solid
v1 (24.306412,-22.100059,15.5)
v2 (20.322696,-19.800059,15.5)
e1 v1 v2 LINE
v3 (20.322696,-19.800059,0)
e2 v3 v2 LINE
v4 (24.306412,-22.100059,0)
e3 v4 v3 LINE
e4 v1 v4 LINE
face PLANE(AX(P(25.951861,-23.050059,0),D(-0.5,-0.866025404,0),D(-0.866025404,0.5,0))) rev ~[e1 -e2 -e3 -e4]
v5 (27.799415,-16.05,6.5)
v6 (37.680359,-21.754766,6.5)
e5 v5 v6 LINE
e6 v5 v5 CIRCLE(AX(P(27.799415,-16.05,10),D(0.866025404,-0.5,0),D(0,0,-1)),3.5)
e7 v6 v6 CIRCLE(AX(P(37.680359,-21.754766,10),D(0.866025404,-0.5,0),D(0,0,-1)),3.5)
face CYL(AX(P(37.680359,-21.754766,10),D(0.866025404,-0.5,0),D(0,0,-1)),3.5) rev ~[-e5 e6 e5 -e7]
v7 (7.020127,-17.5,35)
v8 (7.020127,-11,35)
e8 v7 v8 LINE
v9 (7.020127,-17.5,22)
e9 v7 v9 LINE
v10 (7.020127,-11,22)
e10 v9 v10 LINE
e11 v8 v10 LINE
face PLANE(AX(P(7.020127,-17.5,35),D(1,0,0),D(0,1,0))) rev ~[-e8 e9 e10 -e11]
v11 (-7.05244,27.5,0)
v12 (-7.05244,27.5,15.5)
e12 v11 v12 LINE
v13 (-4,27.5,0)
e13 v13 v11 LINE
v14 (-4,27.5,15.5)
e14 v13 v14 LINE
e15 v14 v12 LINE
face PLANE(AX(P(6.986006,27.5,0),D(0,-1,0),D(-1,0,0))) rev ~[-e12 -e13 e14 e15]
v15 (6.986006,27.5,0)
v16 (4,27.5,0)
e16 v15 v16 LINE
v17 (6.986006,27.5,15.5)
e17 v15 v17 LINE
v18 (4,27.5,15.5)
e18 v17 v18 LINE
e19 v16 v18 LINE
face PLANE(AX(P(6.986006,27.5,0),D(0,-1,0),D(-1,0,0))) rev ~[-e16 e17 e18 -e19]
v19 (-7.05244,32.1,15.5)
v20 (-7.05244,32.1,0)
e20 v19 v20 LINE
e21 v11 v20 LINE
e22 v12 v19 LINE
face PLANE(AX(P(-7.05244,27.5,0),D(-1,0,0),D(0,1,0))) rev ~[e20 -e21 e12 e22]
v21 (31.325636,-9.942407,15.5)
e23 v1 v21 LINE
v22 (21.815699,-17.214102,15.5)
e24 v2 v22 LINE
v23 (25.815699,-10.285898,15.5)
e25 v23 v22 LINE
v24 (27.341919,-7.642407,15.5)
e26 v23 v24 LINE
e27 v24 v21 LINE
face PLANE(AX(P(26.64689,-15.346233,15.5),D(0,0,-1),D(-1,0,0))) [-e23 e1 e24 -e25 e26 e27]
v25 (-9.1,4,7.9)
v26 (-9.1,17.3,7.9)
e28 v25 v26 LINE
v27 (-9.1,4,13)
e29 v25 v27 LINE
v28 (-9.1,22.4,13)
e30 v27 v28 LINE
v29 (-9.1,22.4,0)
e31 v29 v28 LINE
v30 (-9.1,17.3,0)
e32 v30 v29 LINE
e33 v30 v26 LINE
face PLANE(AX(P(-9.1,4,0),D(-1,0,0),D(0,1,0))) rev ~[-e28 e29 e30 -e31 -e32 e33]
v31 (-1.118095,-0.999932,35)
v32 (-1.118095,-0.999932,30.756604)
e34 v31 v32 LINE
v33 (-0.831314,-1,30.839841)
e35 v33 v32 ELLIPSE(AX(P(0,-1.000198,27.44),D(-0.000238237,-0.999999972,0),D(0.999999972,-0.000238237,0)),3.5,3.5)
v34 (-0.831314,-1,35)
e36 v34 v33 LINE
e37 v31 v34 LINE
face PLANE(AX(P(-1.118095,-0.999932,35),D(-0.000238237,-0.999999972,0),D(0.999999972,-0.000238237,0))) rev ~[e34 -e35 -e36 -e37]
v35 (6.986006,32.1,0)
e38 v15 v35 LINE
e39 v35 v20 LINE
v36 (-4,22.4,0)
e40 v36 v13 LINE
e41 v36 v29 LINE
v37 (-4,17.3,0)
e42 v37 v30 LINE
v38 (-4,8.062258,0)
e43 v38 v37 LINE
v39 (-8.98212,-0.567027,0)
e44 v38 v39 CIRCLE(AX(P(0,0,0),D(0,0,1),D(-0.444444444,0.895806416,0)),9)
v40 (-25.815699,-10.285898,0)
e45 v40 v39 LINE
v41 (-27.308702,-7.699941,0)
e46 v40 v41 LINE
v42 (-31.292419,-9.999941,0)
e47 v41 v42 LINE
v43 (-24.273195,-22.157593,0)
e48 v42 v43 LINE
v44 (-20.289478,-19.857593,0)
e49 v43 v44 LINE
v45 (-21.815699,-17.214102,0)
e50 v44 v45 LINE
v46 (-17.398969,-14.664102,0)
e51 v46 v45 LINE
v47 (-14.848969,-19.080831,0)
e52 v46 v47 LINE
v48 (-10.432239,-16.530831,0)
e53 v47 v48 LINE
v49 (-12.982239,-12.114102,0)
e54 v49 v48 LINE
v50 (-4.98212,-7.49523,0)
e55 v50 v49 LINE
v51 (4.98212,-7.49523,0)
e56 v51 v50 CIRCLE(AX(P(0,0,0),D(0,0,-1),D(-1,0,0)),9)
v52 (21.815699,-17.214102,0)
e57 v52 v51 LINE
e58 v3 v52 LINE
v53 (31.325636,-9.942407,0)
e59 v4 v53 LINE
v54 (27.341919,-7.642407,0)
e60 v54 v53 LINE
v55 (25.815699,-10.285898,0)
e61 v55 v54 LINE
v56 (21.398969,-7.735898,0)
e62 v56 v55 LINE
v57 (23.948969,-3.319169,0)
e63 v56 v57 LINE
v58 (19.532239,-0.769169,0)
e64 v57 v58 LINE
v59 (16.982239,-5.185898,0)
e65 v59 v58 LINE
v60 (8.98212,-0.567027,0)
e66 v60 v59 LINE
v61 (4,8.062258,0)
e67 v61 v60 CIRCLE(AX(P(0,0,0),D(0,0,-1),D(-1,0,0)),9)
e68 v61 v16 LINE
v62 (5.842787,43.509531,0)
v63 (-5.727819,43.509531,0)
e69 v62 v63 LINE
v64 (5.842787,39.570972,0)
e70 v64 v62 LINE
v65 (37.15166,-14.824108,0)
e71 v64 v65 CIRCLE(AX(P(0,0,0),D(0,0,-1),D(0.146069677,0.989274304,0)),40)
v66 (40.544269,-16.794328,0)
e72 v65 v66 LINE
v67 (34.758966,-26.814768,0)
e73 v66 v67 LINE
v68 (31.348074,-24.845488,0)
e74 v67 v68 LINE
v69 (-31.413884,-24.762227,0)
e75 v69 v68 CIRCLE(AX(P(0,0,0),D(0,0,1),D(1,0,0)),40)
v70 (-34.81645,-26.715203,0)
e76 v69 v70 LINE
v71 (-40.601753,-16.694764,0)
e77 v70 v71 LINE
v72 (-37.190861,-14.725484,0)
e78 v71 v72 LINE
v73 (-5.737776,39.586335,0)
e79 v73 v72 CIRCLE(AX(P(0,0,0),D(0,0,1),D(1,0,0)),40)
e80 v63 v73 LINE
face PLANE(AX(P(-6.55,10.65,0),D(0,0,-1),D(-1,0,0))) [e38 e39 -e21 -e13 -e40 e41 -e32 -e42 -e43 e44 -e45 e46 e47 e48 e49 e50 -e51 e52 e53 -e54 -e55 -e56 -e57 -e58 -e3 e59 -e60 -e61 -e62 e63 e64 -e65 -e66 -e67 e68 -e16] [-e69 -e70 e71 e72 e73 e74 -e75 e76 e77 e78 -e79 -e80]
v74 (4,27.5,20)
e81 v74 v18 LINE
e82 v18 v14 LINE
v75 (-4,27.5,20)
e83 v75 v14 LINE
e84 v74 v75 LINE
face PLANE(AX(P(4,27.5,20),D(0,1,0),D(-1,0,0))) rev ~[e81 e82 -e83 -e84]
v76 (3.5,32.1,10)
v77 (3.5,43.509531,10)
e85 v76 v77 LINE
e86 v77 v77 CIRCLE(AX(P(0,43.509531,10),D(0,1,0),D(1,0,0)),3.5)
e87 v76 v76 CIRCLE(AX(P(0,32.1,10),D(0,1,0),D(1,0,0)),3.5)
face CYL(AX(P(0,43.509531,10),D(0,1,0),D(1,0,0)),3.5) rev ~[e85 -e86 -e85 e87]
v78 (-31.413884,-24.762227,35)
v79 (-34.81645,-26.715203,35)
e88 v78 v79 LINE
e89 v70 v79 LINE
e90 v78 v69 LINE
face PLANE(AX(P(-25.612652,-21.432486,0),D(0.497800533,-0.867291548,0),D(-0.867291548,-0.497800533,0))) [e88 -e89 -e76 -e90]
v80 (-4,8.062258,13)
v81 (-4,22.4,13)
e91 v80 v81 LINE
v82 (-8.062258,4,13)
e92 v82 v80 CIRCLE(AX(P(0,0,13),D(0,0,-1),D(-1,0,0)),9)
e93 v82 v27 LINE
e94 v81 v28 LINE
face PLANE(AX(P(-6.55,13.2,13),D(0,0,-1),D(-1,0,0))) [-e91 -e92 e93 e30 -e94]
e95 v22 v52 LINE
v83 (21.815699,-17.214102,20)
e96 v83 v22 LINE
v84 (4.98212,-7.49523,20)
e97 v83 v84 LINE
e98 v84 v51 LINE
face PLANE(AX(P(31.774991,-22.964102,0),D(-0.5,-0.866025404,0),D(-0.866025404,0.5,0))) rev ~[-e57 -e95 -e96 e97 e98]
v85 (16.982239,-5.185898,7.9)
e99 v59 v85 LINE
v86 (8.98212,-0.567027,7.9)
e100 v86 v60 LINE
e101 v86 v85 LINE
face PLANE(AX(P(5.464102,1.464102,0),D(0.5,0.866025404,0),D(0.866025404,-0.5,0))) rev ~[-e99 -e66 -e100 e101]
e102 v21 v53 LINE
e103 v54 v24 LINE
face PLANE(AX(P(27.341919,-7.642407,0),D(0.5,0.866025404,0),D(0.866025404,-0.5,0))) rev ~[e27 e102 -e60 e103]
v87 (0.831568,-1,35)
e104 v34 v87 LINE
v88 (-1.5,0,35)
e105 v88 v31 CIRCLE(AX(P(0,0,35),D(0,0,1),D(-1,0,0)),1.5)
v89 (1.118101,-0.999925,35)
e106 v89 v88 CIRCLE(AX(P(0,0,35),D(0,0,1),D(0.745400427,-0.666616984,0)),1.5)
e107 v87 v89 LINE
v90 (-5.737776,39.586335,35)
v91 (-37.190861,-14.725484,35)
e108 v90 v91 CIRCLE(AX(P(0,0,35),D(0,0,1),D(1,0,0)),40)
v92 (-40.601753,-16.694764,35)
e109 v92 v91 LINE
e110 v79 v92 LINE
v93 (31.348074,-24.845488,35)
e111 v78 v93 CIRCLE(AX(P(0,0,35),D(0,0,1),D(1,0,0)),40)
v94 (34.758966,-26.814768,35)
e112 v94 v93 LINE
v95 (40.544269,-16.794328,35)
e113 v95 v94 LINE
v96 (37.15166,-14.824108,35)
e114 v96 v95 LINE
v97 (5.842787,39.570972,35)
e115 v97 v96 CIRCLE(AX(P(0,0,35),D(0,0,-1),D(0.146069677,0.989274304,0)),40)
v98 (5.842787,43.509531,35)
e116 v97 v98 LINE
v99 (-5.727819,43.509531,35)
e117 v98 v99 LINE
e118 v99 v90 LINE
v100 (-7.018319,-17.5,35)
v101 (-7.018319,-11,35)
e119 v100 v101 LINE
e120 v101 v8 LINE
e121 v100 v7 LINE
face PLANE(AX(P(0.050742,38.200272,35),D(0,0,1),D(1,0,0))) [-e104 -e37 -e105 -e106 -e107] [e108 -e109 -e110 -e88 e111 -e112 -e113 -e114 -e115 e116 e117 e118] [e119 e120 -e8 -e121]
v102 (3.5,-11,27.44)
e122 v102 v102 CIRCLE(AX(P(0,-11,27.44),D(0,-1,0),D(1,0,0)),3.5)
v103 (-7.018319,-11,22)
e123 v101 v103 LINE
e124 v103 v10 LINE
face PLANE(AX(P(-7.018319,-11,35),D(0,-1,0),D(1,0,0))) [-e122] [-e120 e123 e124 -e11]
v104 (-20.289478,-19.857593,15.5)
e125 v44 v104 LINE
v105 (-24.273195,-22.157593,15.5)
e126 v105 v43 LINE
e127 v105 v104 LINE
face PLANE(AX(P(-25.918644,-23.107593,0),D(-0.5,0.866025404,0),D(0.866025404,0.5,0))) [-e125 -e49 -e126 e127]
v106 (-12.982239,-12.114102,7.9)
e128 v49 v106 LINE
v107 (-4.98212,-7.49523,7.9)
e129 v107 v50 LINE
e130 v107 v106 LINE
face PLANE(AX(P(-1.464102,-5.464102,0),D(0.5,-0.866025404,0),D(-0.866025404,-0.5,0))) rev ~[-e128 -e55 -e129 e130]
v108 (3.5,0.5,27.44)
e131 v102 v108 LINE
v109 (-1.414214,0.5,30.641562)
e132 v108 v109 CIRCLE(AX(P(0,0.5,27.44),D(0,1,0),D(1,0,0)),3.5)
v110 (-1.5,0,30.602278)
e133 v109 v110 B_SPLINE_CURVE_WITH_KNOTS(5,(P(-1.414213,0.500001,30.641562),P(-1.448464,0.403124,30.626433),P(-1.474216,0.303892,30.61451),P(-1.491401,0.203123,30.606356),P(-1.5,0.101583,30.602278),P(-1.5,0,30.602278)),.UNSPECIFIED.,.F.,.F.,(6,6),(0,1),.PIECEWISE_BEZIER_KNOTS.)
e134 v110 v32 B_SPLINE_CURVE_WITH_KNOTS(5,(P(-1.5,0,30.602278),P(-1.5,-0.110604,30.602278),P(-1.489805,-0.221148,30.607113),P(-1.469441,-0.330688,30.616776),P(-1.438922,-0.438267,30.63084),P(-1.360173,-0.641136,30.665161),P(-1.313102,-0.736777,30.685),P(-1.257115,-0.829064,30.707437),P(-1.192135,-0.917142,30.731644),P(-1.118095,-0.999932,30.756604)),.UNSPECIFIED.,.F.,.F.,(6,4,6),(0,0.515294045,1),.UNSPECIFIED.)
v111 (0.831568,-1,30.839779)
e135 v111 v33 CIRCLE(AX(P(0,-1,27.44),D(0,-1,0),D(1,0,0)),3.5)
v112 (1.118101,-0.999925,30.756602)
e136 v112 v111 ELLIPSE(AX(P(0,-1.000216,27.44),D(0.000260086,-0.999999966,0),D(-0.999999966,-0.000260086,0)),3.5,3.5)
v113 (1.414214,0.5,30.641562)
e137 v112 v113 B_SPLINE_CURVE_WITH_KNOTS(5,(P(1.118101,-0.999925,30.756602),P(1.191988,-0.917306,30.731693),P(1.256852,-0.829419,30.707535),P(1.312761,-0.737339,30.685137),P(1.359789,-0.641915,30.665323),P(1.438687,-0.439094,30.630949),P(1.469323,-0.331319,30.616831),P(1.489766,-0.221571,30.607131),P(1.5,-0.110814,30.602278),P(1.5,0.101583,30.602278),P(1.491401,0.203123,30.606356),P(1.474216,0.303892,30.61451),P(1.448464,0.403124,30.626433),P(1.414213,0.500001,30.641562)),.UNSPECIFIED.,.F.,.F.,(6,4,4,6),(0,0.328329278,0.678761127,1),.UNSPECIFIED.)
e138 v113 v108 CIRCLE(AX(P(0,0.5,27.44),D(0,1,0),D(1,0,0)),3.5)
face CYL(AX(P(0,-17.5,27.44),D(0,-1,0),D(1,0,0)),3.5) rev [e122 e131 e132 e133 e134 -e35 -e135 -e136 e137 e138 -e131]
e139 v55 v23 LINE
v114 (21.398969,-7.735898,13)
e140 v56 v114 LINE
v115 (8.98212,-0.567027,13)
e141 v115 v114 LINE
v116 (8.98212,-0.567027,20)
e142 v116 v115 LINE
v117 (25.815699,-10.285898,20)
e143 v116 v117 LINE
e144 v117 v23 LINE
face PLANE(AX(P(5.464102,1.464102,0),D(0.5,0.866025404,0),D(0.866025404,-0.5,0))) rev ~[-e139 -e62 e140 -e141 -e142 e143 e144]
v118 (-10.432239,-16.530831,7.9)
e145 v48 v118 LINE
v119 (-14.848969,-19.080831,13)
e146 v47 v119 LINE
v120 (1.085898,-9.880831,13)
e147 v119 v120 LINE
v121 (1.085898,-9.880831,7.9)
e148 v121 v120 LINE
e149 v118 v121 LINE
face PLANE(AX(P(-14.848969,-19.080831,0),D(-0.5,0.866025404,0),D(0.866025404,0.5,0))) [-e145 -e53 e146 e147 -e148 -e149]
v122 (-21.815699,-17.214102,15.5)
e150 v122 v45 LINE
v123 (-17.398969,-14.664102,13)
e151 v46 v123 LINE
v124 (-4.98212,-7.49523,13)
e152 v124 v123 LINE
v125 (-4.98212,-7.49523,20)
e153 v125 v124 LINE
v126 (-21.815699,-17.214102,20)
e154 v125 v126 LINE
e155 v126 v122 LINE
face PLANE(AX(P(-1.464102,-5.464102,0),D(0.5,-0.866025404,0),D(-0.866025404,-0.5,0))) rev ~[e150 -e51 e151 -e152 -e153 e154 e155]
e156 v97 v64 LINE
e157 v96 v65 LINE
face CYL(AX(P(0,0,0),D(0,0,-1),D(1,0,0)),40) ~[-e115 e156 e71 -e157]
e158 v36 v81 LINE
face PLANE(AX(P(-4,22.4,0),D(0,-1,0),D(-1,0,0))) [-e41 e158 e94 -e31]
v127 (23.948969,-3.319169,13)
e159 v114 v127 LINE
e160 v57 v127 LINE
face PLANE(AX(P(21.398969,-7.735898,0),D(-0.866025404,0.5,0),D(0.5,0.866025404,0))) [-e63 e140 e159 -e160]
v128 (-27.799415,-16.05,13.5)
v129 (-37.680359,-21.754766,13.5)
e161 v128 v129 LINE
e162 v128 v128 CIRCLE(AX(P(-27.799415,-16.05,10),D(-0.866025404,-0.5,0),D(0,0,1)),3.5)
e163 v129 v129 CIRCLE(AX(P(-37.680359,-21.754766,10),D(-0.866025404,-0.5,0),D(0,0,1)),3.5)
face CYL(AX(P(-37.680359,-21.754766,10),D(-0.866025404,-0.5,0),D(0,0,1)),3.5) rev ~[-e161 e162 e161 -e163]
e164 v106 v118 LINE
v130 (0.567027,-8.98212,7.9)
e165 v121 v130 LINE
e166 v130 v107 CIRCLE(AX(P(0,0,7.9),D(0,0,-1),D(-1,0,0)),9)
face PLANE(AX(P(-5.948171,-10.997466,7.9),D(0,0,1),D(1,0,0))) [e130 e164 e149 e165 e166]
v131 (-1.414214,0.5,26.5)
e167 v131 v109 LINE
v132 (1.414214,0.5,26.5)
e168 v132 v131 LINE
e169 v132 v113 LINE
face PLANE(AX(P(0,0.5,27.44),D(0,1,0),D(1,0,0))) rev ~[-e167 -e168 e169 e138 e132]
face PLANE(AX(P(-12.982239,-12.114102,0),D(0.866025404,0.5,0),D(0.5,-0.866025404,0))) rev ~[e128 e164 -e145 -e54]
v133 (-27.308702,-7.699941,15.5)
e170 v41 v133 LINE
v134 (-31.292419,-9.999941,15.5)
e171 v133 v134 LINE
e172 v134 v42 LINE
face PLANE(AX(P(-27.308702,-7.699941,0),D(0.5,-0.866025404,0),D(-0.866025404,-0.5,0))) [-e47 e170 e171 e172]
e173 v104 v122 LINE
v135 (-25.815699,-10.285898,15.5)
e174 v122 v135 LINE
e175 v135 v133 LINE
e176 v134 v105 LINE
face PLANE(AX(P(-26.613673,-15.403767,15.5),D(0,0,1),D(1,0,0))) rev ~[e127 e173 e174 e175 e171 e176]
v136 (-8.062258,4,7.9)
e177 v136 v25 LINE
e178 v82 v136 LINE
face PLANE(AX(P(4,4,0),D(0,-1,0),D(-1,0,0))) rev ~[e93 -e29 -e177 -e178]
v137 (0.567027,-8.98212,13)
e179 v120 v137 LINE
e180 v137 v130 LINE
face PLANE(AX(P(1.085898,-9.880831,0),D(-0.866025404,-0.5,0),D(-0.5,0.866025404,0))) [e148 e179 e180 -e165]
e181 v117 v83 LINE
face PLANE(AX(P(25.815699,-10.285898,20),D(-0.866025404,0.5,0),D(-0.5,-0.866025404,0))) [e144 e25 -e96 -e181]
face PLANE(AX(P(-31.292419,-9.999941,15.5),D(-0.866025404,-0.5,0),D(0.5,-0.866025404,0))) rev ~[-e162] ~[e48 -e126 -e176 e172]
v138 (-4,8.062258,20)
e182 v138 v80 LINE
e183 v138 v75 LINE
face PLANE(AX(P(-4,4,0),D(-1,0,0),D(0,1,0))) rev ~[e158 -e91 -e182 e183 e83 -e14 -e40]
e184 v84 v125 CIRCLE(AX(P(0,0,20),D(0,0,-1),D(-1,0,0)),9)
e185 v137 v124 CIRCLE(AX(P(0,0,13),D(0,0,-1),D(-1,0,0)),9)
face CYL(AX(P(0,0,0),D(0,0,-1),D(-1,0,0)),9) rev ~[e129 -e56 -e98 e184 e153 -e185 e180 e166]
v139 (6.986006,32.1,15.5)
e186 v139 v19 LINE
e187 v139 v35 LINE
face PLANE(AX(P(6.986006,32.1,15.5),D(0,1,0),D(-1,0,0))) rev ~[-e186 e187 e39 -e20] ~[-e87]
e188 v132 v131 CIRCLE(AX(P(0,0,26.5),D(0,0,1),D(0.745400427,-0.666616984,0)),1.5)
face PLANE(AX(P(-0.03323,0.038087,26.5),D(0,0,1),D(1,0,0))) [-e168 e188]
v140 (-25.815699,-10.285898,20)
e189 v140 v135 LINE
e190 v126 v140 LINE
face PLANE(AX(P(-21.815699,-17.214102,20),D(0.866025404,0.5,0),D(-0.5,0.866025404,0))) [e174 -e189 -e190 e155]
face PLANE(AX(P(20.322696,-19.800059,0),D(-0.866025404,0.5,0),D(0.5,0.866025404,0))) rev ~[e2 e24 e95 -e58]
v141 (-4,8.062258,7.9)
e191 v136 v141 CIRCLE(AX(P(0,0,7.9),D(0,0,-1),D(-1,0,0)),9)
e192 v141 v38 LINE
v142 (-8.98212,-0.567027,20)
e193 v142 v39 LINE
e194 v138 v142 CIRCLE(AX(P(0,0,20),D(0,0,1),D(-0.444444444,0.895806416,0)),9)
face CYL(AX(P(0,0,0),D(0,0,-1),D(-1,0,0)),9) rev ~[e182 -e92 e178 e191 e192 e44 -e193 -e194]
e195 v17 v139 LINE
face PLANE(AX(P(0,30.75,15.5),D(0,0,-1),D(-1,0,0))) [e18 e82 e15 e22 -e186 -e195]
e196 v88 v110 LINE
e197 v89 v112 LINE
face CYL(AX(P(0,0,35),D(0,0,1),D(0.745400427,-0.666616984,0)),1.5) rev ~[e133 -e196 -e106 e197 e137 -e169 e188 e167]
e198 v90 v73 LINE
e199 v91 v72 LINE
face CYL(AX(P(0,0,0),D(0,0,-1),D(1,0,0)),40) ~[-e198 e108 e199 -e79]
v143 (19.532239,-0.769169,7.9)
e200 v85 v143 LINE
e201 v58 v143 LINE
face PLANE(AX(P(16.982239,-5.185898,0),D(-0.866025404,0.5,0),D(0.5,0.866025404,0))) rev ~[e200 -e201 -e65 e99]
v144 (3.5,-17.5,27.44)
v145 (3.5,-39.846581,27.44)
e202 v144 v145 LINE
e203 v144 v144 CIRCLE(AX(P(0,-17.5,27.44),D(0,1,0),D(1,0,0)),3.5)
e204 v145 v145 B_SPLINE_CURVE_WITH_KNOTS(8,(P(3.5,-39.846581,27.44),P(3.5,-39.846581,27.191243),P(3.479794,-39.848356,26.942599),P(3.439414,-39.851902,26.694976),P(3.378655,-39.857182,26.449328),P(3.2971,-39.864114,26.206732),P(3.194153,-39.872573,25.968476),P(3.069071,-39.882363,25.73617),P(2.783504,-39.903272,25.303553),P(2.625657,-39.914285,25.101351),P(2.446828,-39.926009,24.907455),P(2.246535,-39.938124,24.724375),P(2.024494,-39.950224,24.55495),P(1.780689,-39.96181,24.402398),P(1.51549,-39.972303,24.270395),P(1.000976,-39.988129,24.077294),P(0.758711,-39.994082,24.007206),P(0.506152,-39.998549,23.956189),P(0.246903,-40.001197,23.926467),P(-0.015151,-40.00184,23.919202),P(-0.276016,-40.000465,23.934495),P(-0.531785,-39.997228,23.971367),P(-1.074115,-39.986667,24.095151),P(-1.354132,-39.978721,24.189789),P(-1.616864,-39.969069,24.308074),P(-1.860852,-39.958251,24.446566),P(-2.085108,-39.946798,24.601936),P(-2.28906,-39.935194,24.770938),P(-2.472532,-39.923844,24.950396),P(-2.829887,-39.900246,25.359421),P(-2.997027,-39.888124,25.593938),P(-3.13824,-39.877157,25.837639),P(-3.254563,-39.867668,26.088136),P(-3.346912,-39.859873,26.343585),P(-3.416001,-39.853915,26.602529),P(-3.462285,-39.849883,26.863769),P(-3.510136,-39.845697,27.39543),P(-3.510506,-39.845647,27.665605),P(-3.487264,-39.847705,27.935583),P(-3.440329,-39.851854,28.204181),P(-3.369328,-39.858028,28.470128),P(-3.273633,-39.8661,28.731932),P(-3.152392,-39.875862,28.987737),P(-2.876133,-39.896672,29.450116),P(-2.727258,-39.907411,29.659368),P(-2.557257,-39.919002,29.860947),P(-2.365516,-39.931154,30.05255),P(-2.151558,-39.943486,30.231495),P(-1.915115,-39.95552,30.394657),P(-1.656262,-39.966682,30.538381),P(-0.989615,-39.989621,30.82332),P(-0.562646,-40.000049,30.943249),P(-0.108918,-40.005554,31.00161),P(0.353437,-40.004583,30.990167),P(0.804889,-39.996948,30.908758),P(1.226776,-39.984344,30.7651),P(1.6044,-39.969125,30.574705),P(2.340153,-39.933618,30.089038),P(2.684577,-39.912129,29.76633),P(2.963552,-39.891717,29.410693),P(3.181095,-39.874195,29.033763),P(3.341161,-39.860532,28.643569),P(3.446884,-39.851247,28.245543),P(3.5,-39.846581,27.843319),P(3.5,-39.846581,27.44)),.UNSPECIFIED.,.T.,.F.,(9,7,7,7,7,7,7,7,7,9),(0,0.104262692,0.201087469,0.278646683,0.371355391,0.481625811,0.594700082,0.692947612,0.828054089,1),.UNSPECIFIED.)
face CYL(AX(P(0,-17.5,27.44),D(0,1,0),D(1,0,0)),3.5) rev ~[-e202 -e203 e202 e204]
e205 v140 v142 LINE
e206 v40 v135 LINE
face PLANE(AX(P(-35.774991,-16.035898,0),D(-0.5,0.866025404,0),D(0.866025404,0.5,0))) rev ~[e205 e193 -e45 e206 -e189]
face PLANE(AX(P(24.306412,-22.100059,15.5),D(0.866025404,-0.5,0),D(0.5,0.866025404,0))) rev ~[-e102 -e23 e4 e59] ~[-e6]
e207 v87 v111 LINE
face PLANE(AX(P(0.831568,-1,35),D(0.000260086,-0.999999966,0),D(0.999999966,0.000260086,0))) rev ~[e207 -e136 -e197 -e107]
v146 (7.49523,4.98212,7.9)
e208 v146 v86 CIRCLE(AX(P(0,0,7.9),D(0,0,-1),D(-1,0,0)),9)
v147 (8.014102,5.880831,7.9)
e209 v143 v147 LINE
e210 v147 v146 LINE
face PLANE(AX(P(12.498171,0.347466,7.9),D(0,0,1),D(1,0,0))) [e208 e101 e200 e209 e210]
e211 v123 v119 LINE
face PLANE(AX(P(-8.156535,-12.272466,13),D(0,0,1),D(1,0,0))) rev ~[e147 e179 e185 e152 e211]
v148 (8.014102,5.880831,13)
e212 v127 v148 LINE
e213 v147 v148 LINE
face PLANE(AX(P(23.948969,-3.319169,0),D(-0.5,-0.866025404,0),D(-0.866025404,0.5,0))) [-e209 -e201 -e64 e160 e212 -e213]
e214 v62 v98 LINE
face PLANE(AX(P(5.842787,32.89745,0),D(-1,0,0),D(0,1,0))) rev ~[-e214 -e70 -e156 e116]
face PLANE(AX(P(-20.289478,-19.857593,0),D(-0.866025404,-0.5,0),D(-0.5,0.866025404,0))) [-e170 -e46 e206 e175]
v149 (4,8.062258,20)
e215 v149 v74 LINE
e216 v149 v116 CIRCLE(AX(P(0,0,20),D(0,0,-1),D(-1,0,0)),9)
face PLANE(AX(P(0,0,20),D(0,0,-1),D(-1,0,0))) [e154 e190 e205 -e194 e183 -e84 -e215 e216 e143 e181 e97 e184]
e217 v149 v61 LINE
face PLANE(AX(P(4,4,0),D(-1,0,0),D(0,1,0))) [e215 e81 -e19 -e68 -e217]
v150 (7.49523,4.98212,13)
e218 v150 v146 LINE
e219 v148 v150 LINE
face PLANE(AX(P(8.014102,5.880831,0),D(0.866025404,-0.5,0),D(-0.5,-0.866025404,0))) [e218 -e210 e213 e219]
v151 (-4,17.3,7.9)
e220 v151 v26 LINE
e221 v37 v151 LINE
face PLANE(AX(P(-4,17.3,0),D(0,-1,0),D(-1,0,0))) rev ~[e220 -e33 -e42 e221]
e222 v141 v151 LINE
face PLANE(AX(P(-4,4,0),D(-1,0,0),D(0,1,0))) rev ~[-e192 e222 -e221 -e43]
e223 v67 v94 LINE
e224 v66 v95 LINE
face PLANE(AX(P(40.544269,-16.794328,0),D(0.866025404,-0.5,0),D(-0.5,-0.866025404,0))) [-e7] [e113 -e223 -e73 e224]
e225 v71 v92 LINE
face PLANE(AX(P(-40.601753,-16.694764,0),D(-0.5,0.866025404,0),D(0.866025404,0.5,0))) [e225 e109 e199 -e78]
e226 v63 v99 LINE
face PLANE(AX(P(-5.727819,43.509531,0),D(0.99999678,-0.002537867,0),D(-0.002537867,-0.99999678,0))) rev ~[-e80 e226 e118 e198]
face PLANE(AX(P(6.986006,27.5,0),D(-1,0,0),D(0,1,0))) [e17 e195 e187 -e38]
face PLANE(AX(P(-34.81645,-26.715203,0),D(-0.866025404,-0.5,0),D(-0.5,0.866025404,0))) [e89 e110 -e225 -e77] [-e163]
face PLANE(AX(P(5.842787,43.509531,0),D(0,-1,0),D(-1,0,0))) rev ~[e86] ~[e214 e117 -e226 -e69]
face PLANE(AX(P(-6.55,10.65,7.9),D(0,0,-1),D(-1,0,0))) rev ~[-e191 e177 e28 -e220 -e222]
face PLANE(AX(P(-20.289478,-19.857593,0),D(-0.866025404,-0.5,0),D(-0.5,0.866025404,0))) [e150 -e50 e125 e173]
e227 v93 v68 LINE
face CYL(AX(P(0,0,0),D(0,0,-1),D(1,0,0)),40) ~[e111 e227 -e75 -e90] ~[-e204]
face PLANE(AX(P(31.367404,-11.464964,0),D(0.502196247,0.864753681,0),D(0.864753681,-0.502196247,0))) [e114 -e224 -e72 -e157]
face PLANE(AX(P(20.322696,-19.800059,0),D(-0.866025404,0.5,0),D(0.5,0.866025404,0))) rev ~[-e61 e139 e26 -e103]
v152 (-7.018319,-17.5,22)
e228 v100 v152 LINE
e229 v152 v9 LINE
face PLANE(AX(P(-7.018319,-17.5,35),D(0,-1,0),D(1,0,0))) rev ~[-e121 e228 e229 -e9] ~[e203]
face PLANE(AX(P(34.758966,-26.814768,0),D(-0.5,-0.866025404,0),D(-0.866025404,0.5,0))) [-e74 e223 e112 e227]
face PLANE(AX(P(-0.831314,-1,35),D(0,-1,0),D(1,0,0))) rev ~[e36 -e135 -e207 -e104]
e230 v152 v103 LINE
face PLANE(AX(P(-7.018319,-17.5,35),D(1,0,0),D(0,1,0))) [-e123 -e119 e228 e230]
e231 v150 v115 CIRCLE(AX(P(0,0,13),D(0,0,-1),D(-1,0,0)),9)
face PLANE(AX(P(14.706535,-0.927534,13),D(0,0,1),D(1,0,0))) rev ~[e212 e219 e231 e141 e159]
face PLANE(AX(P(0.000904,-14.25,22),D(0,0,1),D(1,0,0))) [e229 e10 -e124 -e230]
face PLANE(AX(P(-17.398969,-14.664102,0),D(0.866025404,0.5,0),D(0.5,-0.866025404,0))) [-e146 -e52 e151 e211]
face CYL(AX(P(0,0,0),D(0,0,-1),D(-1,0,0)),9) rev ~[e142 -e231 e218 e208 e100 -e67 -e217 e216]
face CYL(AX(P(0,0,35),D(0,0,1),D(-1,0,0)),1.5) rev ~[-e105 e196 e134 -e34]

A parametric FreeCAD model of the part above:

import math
import FreeCAD as App
import Part
import Sketcher
Q = App.Units.Quantity


def add_polygon(sketch, points):
    """Adds a closed chain of lines whose ends are joined by coincident constraints."""
    first, n = sketch.GeometryCount, len(points)
    for a, b in zip(points, points[1:] + points[:1]):
        sketch.addGeometry(Part.LineSegment(App.Vector(*a, 0), App.Vector(*b, 0)), False)
    for i in range(n):
        sketch.addConstraint(Sketcher.Constraint("Coincident", first + i, 2, first + (i + 1) % n, 1))

doc = App.newDocument("Part")
body = doc.addObject("PartDesign::Body", "Body")

# Sketch on XY plane
sketch1 = body.newObject("Sketcher::SketchObject", "Sketch")
sketch1.AttachmentSupport = (doc.getObject("XY_Plane"), [""])
sketch1.MapMode = "FlatFace"
sketch1.addGeometry(Part.Circle(App.Vector(0, 0, 0), App.Vector(0, 0, 1), 40), False)
sketch1.addConstraint([
    Sketcher.Constraint("Coincident", 0, 3, -1, 1),
    Sketcher.Constraint("Diameter", 0, 80.0),
])
pad1 = body.newObject("PartDesign::Pad", "Pad")
pad1.Profile = sketch1
pad1.Length = 35

# Sketch on XY plane
sketch2 = body.newObject("Sketcher::SketchObject", "Sketch001")
sketch2.AttachmentSupport = (doc.getObject("XY_Plane"), [""])
sketch2.MapMode = "FlatFace"
add_polygon(sketch2, [(4, 39), (4, 4), (-4, 4), (-4, 39)])  # lines 0-3
add_polygon(sketch2, [(-31.774991, -22.964102), (-35.774991, -16.035898), (-5.464102, 1.464102), (-1.464102, -5.464102)])  # lines 4-7
add_polygon(sketch2, [(35.774991, -16.035898), (31.774991, -22.964102), (1.464102, -5.464102), (5.464102, 1.464102)])  # lines 8-11
sketch2.addConstraint([
    Sketcher.Constraint("Vertical", 0),
    Sketcher.Constraint("Horizontal", 1),
    Sketcher.Constraint("Vertical", 2),
    Sketcher.Constraint("Horizontal", 3),
    Sketcher.Constraint("Symmetric", 7, 2, 8, 2, -2),
    Sketcher.Constraint("Symmetric", 6, 2, 9, 2, -2),
    Sketcher.Constraint("Symmetric", 5, 2, 10, 2, -2),
    Sketcher.Constraint("Symmetric", 4, 2, 11, 2, -2),
    Sketcher.Constraint("Perpendicular", 4, 5),
    Sketcher.Constraint("Perpendicular", 5, 6),
    Sketcher.Constraint("Perpendicular", 6, 7),
    Sketcher.Constraint("DistanceX", 1, 2, 1, 1, 8.0),
    Sketcher.Constraint("DistanceY", 0, 2, 0, 1, 35.0),
    Sketcher.Constraint("Angle", 4, Q("120 deg")),
    Sketcher.Constraint("Distance", 4, 8.0),
    Sketcher.Constraint("Distance", 5, 35.0),
    Sketcher.Constraint("DistanceX", -1, 1, 0, 2, 4.0),
    Sketcher.Constraint("DistanceY", -1, 1, 0, 2, 4.0),
    Sketcher.Constraint("DistanceY", 4, 2, -1, 1, 16.035898),
    Sketcher.Constraint("DistanceX", 5, 2, -1, 1, 5.464102),
])
pocket1 = body.newObject("PartDesign::Pocket", "Pocket")
pocket1.Profile = sketch2
pocket1.Length = 20
pocket1.Reversed = True

# Sketch on an angled plane
sketch3 = body.newObject("Sketcher::SketchObject", "Sketch002")
sketch3.Placement = App.Placement(App.Vector(-3.464102, -2, 0), App.Rotation(App.Vector(0, 0, 1), App.Vector(-0.5, 0.866025404, 0), App.Vector(-0.866025404, -0.5, 0), "ZXY"))
sketch3.addGeometry(Part.Circle(App.Vector(10, 0, 0), App.Vector(0, 0, 1), 3.5), False)
sketch3.addConstraint([
    Sketcher.Constraint("PointOnObject", 0, 3, -1),
    Sketcher.Constraint("Diameter", 0, 7.0),
    Sketcher.Constraint("DistanceX", -1, 1, 0, 3, 10.0),
])
pocket2 = body.newObject("PartDesign::Pocket", "Pocket001")
pocket2.Profile = sketch3
pocket2.Length = 80
pocket2.Reversed = True

# Sketch on XZ plane
sketch4 = body.newObject("Sketcher::SketchObject", "Sketch003")
sketch4.AttachmentSupport = (doc.getObject("XZ_Plane"), [""])
sketch4.MapMode = "FlatFace"
sketch4.AttachmentOffset = App.Placement(App.Vector(0, 0, -4), App.Rotation())
sketch4.addGeometry(Part.Circle(App.Vector(0, 10, 0), App.Vector(0, 0, 1), 3.5), False)
sketch4.addConstraint([
    Sketcher.Constraint("PointOnObject", 0, 3, -2),
    Sketcher.Constraint("Diameter", 0, 7.0),
    Sketcher.Constraint("DistanceY", -1, 1, 0, 3, 10.0),
])
pocket3 = body.newObject("PartDesign::Pocket", "Pocket002")
pocket3.Profile = sketch4
pocket3.Length = 50

# Sketch on an angled plane
sketch5 = body.newObject("Sketcher::SketchObject", "Sketch004")
sketch5.Placement = App.Placement(App.Vector(3.464102, -2, 0), App.Rotation(App.Vector(0, 0, -1), App.Vector(0.5, 0.866025404, 0), App.Vector(0.866025404, -0.5, 0), "ZXY"))
sketch5.addGeometry(Part.Circle(App.Vector(-10, 0, 0), App.Vector(0, 0, 1), 3.5), False)
sketch5.addConstraint([
    Sketcher.Constraint("PointOnObject", 0, 3, -1),
    Sketcher.Constraint("Diameter", 0, 7.0),
    Sketcher.Constraint("DistanceX", 0, 3, -1, 1, 10.0),
])
pocket4 = body.newObject("PartDesign::Pocket", "Pocket003")
pocket4.Profile = sketch5
pocket4.Length = 50
pocket4.Reversed = True

# Sketch on XY plane
sketch6 = body.newObject("Sketcher::SketchObject", "Sketch005")
sketch6.AttachmentSupport = (doc.getObject("XY_Plane"), [""])
sketch6.MapMode = "FlatFace"
add_polygon(sketch6, [(32.971084, -10.892407), (25.951861, -23.050059), (20.322696, -19.800059), (27.341919, -7.642407)])  # lines 0-3
add_polygon(sketch6, [(6.986006, 34), (6.986006, 27.5), (-7.05244, 27.5), (-7.05244, 34)])  # lines 4-7
add_polygon(sketch6, [(-32.937867, -10.949941), (-27.308702, -7.699941), (-20.289478, -19.857593), (-25.918644, -23.107593)])  # lines 8-11
sketch6.addConstraint([
    Sketcher.Constraint("Vertical", 4),
    Sketcher.Constraint("Horizontal", 5),
    Sketcher.Constraint("Vertical", 6),
    Sketcher.Constraint("Horizontal", 7),
    Sketcher.Constraint("Perpendicular", 0, 1),
    Sketcher.Constraint("Perpendicular", 1, 2),
    Sketcher.Constraint("Perpendicular", 2, 3),
    Sketcher.Constraint("Perpendicular", 8, 9),
    Sketcher.Constraint("Perpendicular", 9, 10),
    Sketcher.Constraint("Perpendicular", 10, 11),
    Sketcher.Constraint("Equal", 3, 8),
    Sketcher.Constraint("Equal", 2, 9),
    Sketcher.Constraint("Angle", 0, Q("-120 deg")),
    Sketcher.Constraint("Angle", 8, Q("30 deg")),
    Sketcher.Constraint("DistanceY", 4, 2, 4, 1, 6.5),
    Sketcher.Constraint("DistanceY", -1, 1, 6, 2, 34.0),
    Sketcher.Constraint("Distance", 1, 6.5),
    Sketcher.Constraint("DistanceX", 8, 2, -1, 1, 27.308702),
    Sketcher.Constraint("DistanceX", 5, 2, 0, 2, 33.004301),
    Sketcher.Constraint("DistanceX", 5, 2, 5, 1, 14.038447),
    Sketcher.Constraint("DistanceX", -1, 1, 0, 2, 25.951861),
    Sketcher.Constraint("DistanceY", 0, 2, -1, 1, 23.050059),
    Sketcher.Constraint("DistanceX", -1, 1, 2, 2, 27.341919),
    Sketcher.Constraint("DistanceY", 8, 2, -1, 1, 7.699941),
])
pocket5 = body.newObject("PartDesign::Pocket", "Pocket004")
pocket5.Profile = sketch6
pocket5.Length = 15.5
pocket5.Reversed = True

# Sketch on XY plane
sketch7 = body.newObject("Sketcher::SketchObject", "Sketch006")
sketch7.AttachmentSupport = (doc.getObject("XY_Plane"), [""])
sketch7.MapMode = "FlatFace"
sketch7.AttachmentOffset = App.Placement(App.Vector(0, 0, 20), App.Rotation())
add_polygon(sketch7, [(4, 34), (4, 27.5), (-4, 27.5), (-4, 34)])  # lines 0-3
add_polygon(sketch7, [(-31.444864, -13.535898), (-25.815699, -10.285898), (-21.815699, -17.214102), (-27.444864, -20.464102)])  # lines 4-7
add_polygon(sketch7, [(27.444864, -20.464102), (21.815699, -17.214102), (25.815699, -10.285898), (31.444864, -13.535898)])  # lines 8-11
sketch7.addConstraint([
    Sketcher.Constraint("Vertical", 0),
    Sketcher.Constraint("Horizontal", 1),
    Sketcher.Constraint("Vertical", 2),
    Sketcher.Constraint("Horizontal", 3),
    Sketcher.Constraint("Symmetric", 5, 2, 8, 2, -2),
    Sketcher.Constraint("Symmetric", 4, 2, 9, 2, -2),
    Sketcher.Constraint("Symmetric", 7, 2, 10, 2, -2),
    Sketcher.Constraint("Symmetric", 6, 2, 11, 2, -2),
    Sketcher.Constraint("Perpendicular", 4, 5),
    Sketcher.Constraint("Perpendicular", 5, 6),
    Sketcher.Constraint("Perpendicular", 6, 7),
    Sketcher.Constraint("DistanceX", 1, 2, 1, 1, 8.0),
    Sketcher.Constraint("Angle", 4, Q("30 deg")),
    Sketcher.Constraint("Distance", 5, 8.0),
    Sketcher.Constraint("DistanceY", 0, 2, 0, 1, 6.5),
    Sketcher.Constraint("DistanceX", -1, 1, 0, 2, 4.0),
    Sketcher.Constraint("DistanceY", -1, 1, 2, 2, 34.0),
    Sketcher.Constraint("Distance", 4, 6.5),
    Sketcher.Constraint("DistanceX", 4, 2, -1, 1, 25.815699),
    Sketcher.Constraint("DistanceY", 4, 2, -1, 1, 10.285898),
])
pad2 = body.newObject("PartDesign::Pad", "Pad001")
pad2.Profile = sketch7
pad2.Length = 4.5
pad2.Reversed = True

# Sketch on XY plane
sketch8 = body.newObject("Sketcher::SketchObject", "Sketch007")
sketch8.AttachmentSupport = (doc.getObject("XY_Plane"), [""])
sketch8.MapMode = "FlatFace"
sketch8.AttachmentOffset = App.Placement(App.Vector(0, 0, 15.5), App.Rotation())
add_polygon(sketch8, [(6.986006, 32.1), (-7.05244, 32.1), (-7.05244, 34), (-4, 34), (-4, 39), (4, 39), (4, 34), (6.986006, 34)])  # lines 0-7
add_polygon(sketch8, [(-25.918644, -23.107593), (-27.444864, -20.464102), (-31.774991, -22.964102), (-35.774991, -16.035898), (-31.444864, -13.535898), (-32.937867, -10.949941), (-31.292419, -9.999941), (-24.273195, -22.157593)])  # lines 8-15
add_polygon(sketch8, [(32.971084, -10.892407), (31.444864, -13.535898), (35.774991, -16.035898), (31.774991, -22.964102), (27.444864, -20.464102), (25.951861, -23.050059), (24.306412, -22.100059), (31.325636, -9.942407)])  # lines 16-23
sketch8.addConstraint([
    Sketcher.Constraint("Horizontal", 0),
    Sketcher.Constraint("Vertical", 1),
    Sketcher.Constraint("Horizontal", 2),
    Sketcher.Constraint("Vertical", 3),
    Sketcher.Constraint("Horizontal", 4),
    Sketcher.Constraint("Vertical", 5),
    Sketcher.Constraint("Horizontal", 6),
    Sketcher.Constraint("Vertical", 7),
    Sketcher.Constraint("Symmetric", 2, 2, 5, 2, -2),
    Sketcher.Constraint("Symmetric", 11, 2, 16, 2, -2),
    Sketcher.Constraint("Symmetric", 10, 2, 17, 2, -2),
    Sketcher.Constraint("Symmetric", 9, 2, 18, 2, -2),
    Sketcher.Constraint("Symmetric", 8, 2, 19, 2, -2),
    Sketcher.Constraint("Perpendicular", 8, 9),
    Sketcher.Constraint("Perpendicular", 9, 10),
    Sketcher.Constraint("Perpendicular", 10, 11),
    Sketcher.Constraint("Perpendicular", 11, 12),
    Sketcher.Constraint("Perpendicular", 12, 13),
    Sketcher.Constraint("Perpendicular", 13, 14),
    Sketcher.Constraint("Perpendicular", 14, 15),
    Sketcher.Constraint("Perpendicular", 16, 17),
    Sketcher.Constraint("Perpendicular", 19, 20),
    Sketcher.Constraint("Perpendicular", 20, 21),
    Sketcher.Constraint("Perpendicular", 21, 22),
    Sketcher.Constraint("Perpendicular", 22, 23),
    Sketcher.Constraint("Equal", 9, 11),
    Sketcher.Constraint("Equal", 8, 16),
    Sketcher.Constraint("Equal", 12, 20),
    Sketcher.Constraint("Equal", 15, 21),
    Sketcher.Constraint("DistanceX", 4, 1, 4, 2, 8.0),
    Sketcher.Constraint("DistanceY", 3, 1, 3, 2, 5.0),
    Sketcher.Constraint("Angle", 8, Q("120 deg")),
    Sketcher.Constraint("Distance", 9, 5.0),
    Sketcher.Constraint("Distance", 10, 8.0),
    Sketcher.Constraint("DistanceY", 1, 1, 1, 2, 1.9),
    Sketcher.Constraint("DistanceY", -1, 1, 1, 2, 34.0),
    Sketcher.Constraint("Distance", 13, 1.9),
    Sketcher.Constraint("DistanceX", 2, 1, 2, 2, 3.05244),
    Sketcher.Constraint("DistanceY", 8, 2, -1, 1, 20.464102),
    Sketcher.Constraint("Distance", 8, 3.05244),
    Sketcher.Constraint("DistanceX", 0, 2, 0, 1, 14.038447),
    Sketcher.Constraint("DistanceX", 9, 2, -1, 1, 31.774991),
    Sketcher.Constraint("DistanceY", 12, 2, -1, 1, 10.949941),
])
pad3 = body.newObject("PartDesign::Pad", "Pad002")
pad3.Profile = sketch8
pad3.Length = 15.5
pad3.Reversed = True

# Sketch on XY plane
sketch9 = body.newObject("Sketcher::SketchObject", "Sketch008")
sketch9.AttachmentSupport = (doc.getObject("XY_Plane"), [""])
sketch9.MapMode = "FlatFace"
add_polygon(sketch9, [(5.842787, 43.509531), (5.842787, 32.89745), (-5.754752, 32.89745), (-5.727819, 43.509531)])  # lines 0-3
add_polygon(sketch9, [(-31.411421, -11.388723), (-25.612652, -21.432486), (-34.81645, -26.715203), (-40.601753, -16.694764)])  # lines 4-7
add_polygon(sketch9, [(25.568634, -21.508727), (31.367404, -11.464964), (40.544269, -16.794328), (34.758966, -26.814768)])  # lines 8-11
sketch9.addConstraint([
    Sketcher.Constraint("Vertical", 0),
    Sketcher.Constraint("Horizontal", 1),
    Sketcher.Constraint("Horizontal", 3),
    Sketcher.Constraint("DistanceX", 6, 2, 1, 2, 34.847001),
    Sketcher.Constraint("DistanceX", 1, 2, 1, 1, 11.597539),
    Sketcher.Constraint("DistanceY", 0, 2, 0, 1, 10.612081),
    Sketcher.Constraint("DistanceX", 4, 2, 1, 2, 19.8579),
    Sketcher.Constraint("DistanceX", 5, 2, 1, 2, 29.061698),
    Sketcher.Constraint("DistanceY", 11, 2, 9, 2, 4.714399),
    Sketcher.Constraint("Distance", 4, 11.597539),
    Sketcher.Constraint("Distance", 7, 10.612081),
    Sketcher.Constraint("Distance", 8, 11.597539),
    Sketcher.Constraint("Distance", 11, 10.612081),
    Sketcher.Constraint("DistanceX", 3, 1, 3, 2, 11.570606),
    Sketcher.Constraint("DistanceY", -1, 1, 0, 2, 32.89745),
    Sketcher.Constraint("DistanceX", 1, 2, -1, 1, 5.754752),
    Sketcher.Constraint("DistanceX", 7, 2, -1, 1, 31.411421),
    Sketcher.Constraint("DistanceX", -1, 1, 9, 2, 40.544269),
    Sketcher.Constraint("DistanceY", 9, 2, -1, 1, 16.794328),
    Sketcher.Constraint("DistanceY", 5, 2, 6, 2, 10.020439),
    Sketcher.Constraint("DistanceY", 8, 2, 7, 2, 0.076241),
    Sketcher.Constraint("DistanceY", 10, 2, 9, 2, 10.020439),
    Sketcher.Constraint("DistanceY", 10, 2, 4, 2, 5.382281),
    Sketcher.Constraint("DistanceX", 0, 2, 10, 2, 28.916179),
])
pad4 = body.newObject("PartDesign::Pad", "Pad003")
pad4.Profile = sketch9
pad4.Length = 35

# Sketch on an angled plane
sketch10 = body.newObject("Sketcher::SketchObject", "Sketch009")
sketch10.Placement = App.Placement(App.Vector(-37.680359, -21.754766, 0), App.Rotation(App.Vector(0, 0, 1), App.Vector(-0.5, 0.866025404, 0), App.Vector(-0.866025404, -0.5, 0), "ZXY"))
sketch10.addGeometry(Part.Circle(App.Vector(10, 0, 0), App.Vector(0, 0, 1), 3.5), False)
sketch10.addConstraint([
    Sketcher.Constraint("PointOnObject", 0, 3, -1),
    Sketcher.Constraint("Diameter", 0, 7.0),
    Sketcher.Constraint("DistanceX", -1, 1, 0, 3, 10.0),
])
pocket6 = body.newObject("PartDesign::Pocket", "Pocket005")
pocket6.Profile = sketch10
pocket6.Length = 50
pocket6.Midplane = True

# Sketch on an angled plane
sketch11 = body.newObject("Sketcher::SketchObject", "Sketch010")
sketch11.Placement = App.Placement(App.Vector(37.680359, -21.754766, 0), App.Rotation(App.Vector(0, 0, -1), App.Vector(0.5, 0.866025404, 0), App.Vector(0.866025404, -0.5, 0), "ZXY"))
sketch11.addGeometry(Part.Circle(App.Vector(-10, 0, 0), App.Vector(0, 0, 1), 3.5), False)
sketch11.addConstraint([
    Sketcher.Constraint("PointOnObject", 0, 3, -1),
    Sketcher.Constraint("Diameter", 0, 7.0),
    Sketcher.Constraint("DistanceX", 0, 3, -1, 1, 10.0),
])
pocket7 = body.newObject("PartDesign::Pocket", "Pocket006")
pocket7.Profile = sketch11
pocket7.Length = 50
pocket7.Midplane = True

# Sketch on XZ plane
sketch12 = body.newObject("Sketcher::SketchObject", "Sketch011")
sketch12.AttachmentSupport = (doc.getObject("XZ_Plane"), [""])
sketch12.MapMode = "FlatFace"
sketch12.AttachmentOffset = App.Placement(App.Vector(0, 0, -43.509531), App.Rotation())
sketch12.addGeometry(Part.Circle(App.Vector(0, 10, 0), App.Vector(0, 0, 1), 3.5), False)
sketch12.addConstraint([
    Sketcher.Constraint("PointOnObject", 0, 3, -2),
    Sketcher.Constraint("Diameter", 0, 7.0),
    Sketcher.Constraint("DistanceY", -1, 1, 0, 3, 10.0),
])
pocket8 = body.newObject("PartDesign::Pocket", "Pocket007")
pocket8.Profile = sketch12
pocket8.Length = 50
pocket8.Midplane = True

# Sketch on XY plane
sketch13 = body.newObject("Sketcher::SketchObject", "Sketch012")
sketch13.AttachmentSupport = (doc.getObject("XY_Plane"), [""])
sketch13.MapMode = "FlatFace"
add_polygon(sketch13, [(-4, 22.4), (-4, 4), (-9.1, 4), (-9.1, 22.4)])  # lines 0-3
sketch13.addConstraint([
    Sketcher.Constraint("Vertical", 0),
    Sketcher.Constraint("Horizontal", 1),
    Sketcher.Constraint("Vertical", 2),
    Sketcher.Constraint("Horizontal", 3),
    Sketcher.Constraint("DistanceX", 1, 2, 1, 1, 5.1),
    Sketcher.Constraint("DistanceY", 0, 2, 0, 1, 18.4),
    Sketcher.Constraint("DistanceX", 0, 2, -1, 1, 4.0),
    Sketcher.Constraint("DistanceY", -1, 1, 0, 2, 4.0),
])
pocket9 = body.newObject("PartDesign::Pocket", "Pocket008")
pocket9.Profile = sketch13
pocket9.Length = 13
pocket9.Reversed = True

# Sketch on XY plane
sketch14 = body.newObject("Sketcher::SketchObject", "Sketch013")
sketch14.AttachmentSupport = (doc.getObject("XY_Plane"), [""])
sketch14.MapMode = "FlatFace"
add_polygon(sketch14, [(-4, 22.4), (-4, 4), (-9.1, 4), (-9.1, 22.4)])  # lines 0-3
add_polygon(sketch14, [(-1.464102, -5.464102), (1.085898, -9.880831), (-14.848969, -19.080831), (-17.398969, -14.664102)])  # lines 4-7
add_polygon(sketch14, [(5.464102, 1.464102), (8.014102, 5.880831), (23.948969, -3.319169), (21.398969, -7.735898)])  # lines 8-11
sketch14.addConstraint([
    Sketcher.Constraint("Vertical", 0),
    Sketcher.Constraint("Horizontal", 1),
    Sketcher.Constraint("Vertical", 2),
    Sketcher.Constraint("Horizontal", 3),
    Sketcher.Constraint("Perpendicular", 4, 5),
    Sketcher.Constraint("Perpendicular", 5, 6),
    Sketcher.Constraint("Perpendicular", 6, 7),
    Sketcher.Constraint("Perpendicular", 8, 9),
    Sketcher.Constraint("Perpendicular", 9, 10),
    Sketcher.Constraint("Perpendicular", 10, 11),
    Sketcher.Constraint("Equal", 6, 8),
    Sketcher.Constraint("Equal", 7, 9),
    Sketcher.Constraint("Angle", 4, Q("-60 deg")),
    Sketcher.Constraint("Angle", 8, Q("60 deg")),
    Sketcher.Constraint("DistanceX", 1, 2, 1, 1, 5.1),
    Sketcher.Constraint("DistanceY", 0, 2, 0, 1, 18.4),
    Sketcher.Constraint("DistanceX", 0, 2, -1, 1, 4.0),
    Sketcher.Constraint("DistanceY", -1, 1, 0, 2, 4.0),
    Sketcher.Constraint("Distance", 4, 5.1),
    Sketcher.Constraint("Distance", 5, 18.4),
    Sketcher.Constraint("DistanceX", -1, 1, 4, 2, 1.085898),
    Sketcher.Constraint("DistanceY", 6, 2, -1, 1, 14.664102),
    Sketcher.Constraint("DistanceX", -1, 1, 8, 2, 8.014102),
    Sketcher.Constraint("DistanceY", 10, 2, -1, 1, 7.735898),
])
pocket10 = body.newObject("PartDesign::Pocket", "Pocket009")
pocket10.Profile = sketch14
pocket10.Length = 13
pocket10.Reversed = True

# Sketch on XY plane
sketch15 = body.newObject("Sketcher::SketchObject", "Sketch014")
sketch15.AttachmentSupport = (doc.getObject("XY_Plane"), [""])
sketch15.MapMode = "FlatFace"
add_polygon(sketch15, [(-4, 17.3), (-4, 4), (-9.1, 4), (-9.1, 17.3)])  # lines 0-3
add_polygon(sketch15, [(-1.464102, -5.464102), (1.085898, -9.880831), (-10.432239, -16.530831), (-12.982239, -12.114102)])  # lines 4-7
add_polygon(sketch15, [(5.464102, 1.464102), (8.014102, 5.880831), (19.532239, -0.769169), (16.982239, -5.185898)])  # lines 8-11
sketch15.addConstraint([
    Sketcher.Constraint("Vertical", 0),
    Sketcher.Constraint("Horizontal", 1),
    Sketcher.Constraint("Vertical", 2),
    Sketcher.Constraint("Horizontal", 3),
    Sketcher.Constraint("Perpendicular", 4, 5),
    Sketcher.Constraint("Perpendicular", 5, 6),
    Sketcher.Constraint("Perpendicular", 6, 7),
    Sketcher.Constraint("Perpendicular", 8, 9),
    Sketcher.Constraint("Perpendicular", 9, 10),
    Sketcher.Constraint("Perpendicular", 10, 11),
    Sketcher.Constraint("Equal", 6, 8),
    Sketcher.Constraint("Equal", 7, 9),
    Sketcher.Constraint("Angle", 4, Q("-60 deg")),
    Sketcher.Constraint("Angle", 8, Q("60 deg")),
    Sketcher.Constraint("DistanceX", 1, 2, 1, 1, 5.1),
    Sketcher.Constraint("DistanceY", 0, 2, 0, 1, 13.3),
    Sketcher.Constraint("DistanceX", 0, 2, -1, 1, 4.0),
    Sketcher.Constraint("DistanceY", -1, 1, 0, 2, 4.0),
    Sketcher.Constraint("Distance", 4, 5.1),
    Sketcher.Constraint("Distance", 5, 13.3),
    Sketcher.Constraint("DistanceX", -1, 1, 4, 2, 1.085898),
    Sketcher.Constraint("DistanceY", 6, 2, -1, 1, 12.114102),
    Sketcher.Constraint("DistanceX", -1, 1, 8, 2, 8.014102),
    Sketcher.Constraint("DistanceY", 10, 2, -1, 1, 5.185898),
])
pad5 = body.newObject("PartDesign::Pad", "Pad004")
pad5.Profile = sketch15
pad5.Length = 7.9

# Sketch on XY plane
sketch16 = body.newObject("Sketcher::SketchObject", "Sketch015")
sketch16.AttachmentSupport = (doc.getObject("XY_Plane"), [""])
sketch16.MapMode = "FlatFace"
sketch16.AttachmentOffset = App.Placement(App.Vector(0, 0, 35), App.Rotation())
sketch16.addGeometry([
    Part.LineSegment(App.Vector(0.831568, -1, 0), App.Vector(1.118101, -0.999925, 0)),  # 0
    Part.ArcOfCircle(Part.Circle(App.Vector(0, 0, 0), App.Vector(0, 0, 1), 1.5), math.radians(-41.806496), math.radians(180)),  # 1
    Part.ArcOfCircle(Part.Circle(App.Vector(0, 0, 0), App.Vector(0, 0, 1), 1.5), math.radians(180), math.radians(221.806814)),  # 2
    Part.LineSegment(App.Vector(-1.118095, -0.999932, 0), App.Vector(-0.831314, -1, 0)),  # 3
    Part.LineSegment(App.Vector(-0.831314, -1, 0), App.Vector(0.831568, -1, 0)),  # 4
], False)
sketch16.addConstraint([
    Sketcher.Constraint("Coincident", 0, 2, 1, 1),
    Sketcher.Constraint("Tangent", 1, 2, 2, 1),
    Sketcher.Constraint("Coincident", 2, 2, 3, 1),
    Sketcher.Constraint("Coincident", 3, 2, 4, 1),
    Sketcher.Constraint("Coincident", 4, 2, 0, 1),
    Sketcher.Constraint("Horizontal", 4),
    Sketcher.Constraint("Coincident", 1, 3, -1, 1),
    Sketcher.Constraint("Equal", 1, 2),
    Sketcher.Constraint("PointOnObject", 1, 2, -1),
    Sketcher.Constraint("Radius", 1, 1.5),
    Sketcher.Constraint("DistanceY", 3, 2, -1, 1, 1.0),
    Sketcher.Constraint("DistanceX", -1, 1, 0, 2, 1.118101),
    Sketcher.Constraint("Distance", 3, 0.286781),
    Sketcher.Constraint("DistanceX", 4, 1, 4, 2, 1.662882),
    Sketcher.Constraint("DistanceY", 2, 2, -1, 1, 0.999932),
])
pocket11 = body.newObject("PartDesign::Pocket", "Pocket010")
pocket11.Profile = sketch16
pocket11.Length = 8.5

# Sketch on XY plane
sketch17 = body.newObject("Sketcher::SketchObject", "Sketch016")
sketch17.AttachmentSupport = (doc.getObject("XY_Plane"), [""])
sketch17.MapMode = "FlatFace"
sketch17.addGeometry(Part.Circle(App.Vector(0, 0, 0), App.Vector(0, 0, 1), 9), False)
sketch17.addConstraint([
    Sketcher.Constraint("Coincident", 0, 3, -1, 1),
    Sketcher.Constraint("Diameter", 0, 18.0),
])
pocket12 = body.newObject("PartDesign::Pocket", "Pocket011")
pocket12.Profile = sketch17
pocket12.Length = 20
pocket12.Reversed = True

# Sketch on XY plane
sketch18 = body.newObject("Sketcher::SketchObject", "Sketch017")
sketch18.AttachmentSupport = (doc.getObject("XY_Plane"), [""])
sketch18.MapMode = "FlatFace"
sketch18.AttachmentOffset = App.Placement(App.Vector(0, 0, 35), App.Rotation())
add_polygon(sketch18, [(-7.018319, -11), (-7.018319, -17.5), (7.020127, -17.5), (7.020127, -11)])  # lines 0-3
sketch18.addConstraint([
    Sketcher.Constraint("Vertical", 0),
    Sketcher.Constraint("Horizontal", 1),
    Sketcher.Constraint("Vertical", 2),
    Sketcher.Constraint("Horizontal", 3),
    Sketcher.Constraint("DistanceY", 0, 2, 0, 1, 6.5),
    Sketcher.Constraint("DistanceY", 2, 2, -1, 1, 11.0),
    Sketcher.Constraint("DistanceX", 1, 1, 1, 2, 14.038447),
    Sketcher.Constraint("DistanceX", 0, 2, -1, 1, 7.018319),
])
pocket13 = body.newObject("PartDesign::Pocket", "Pocket012")
pocket13.Profile = sketch18
pocket13.Length = 13

# Sketch on XZ plane
sketch19 = body.newObject("Sketcher::SketchObject", "Sketch018")
sketch19.AttachmentSupport = (doc.getObject("XZ_Plane"), [""])
sketch19.MapMode = "FlatFace"
sketch19.AttachmentOffset = App.Placement(App.Vector(0, 0, 17.5), App.Rotation())
sketch19.addGeometry(Part.Circle(App.Vector(0, 27.44, 0), App.Vector(0, 0, 1), 3.5), False)
sketch19.addConstraint([
    Sketcher.Constraint("PointOnObject", 0, 3, -2),
    Sketcher.Constraint("Diameter", 0, 7.0),
    Sketcher.Constraint("DistanceY", -1, 1, 0, 3, 27.44),
])
pocket14 = body.newObject("PartDesign::Pocket", "Pocket013")
pocket14.Profile = sketch19
pocket14.Type = "TwoLengths"
pocket14.Length = 18
pocket14.Length2 = 50

doc.recompute()
